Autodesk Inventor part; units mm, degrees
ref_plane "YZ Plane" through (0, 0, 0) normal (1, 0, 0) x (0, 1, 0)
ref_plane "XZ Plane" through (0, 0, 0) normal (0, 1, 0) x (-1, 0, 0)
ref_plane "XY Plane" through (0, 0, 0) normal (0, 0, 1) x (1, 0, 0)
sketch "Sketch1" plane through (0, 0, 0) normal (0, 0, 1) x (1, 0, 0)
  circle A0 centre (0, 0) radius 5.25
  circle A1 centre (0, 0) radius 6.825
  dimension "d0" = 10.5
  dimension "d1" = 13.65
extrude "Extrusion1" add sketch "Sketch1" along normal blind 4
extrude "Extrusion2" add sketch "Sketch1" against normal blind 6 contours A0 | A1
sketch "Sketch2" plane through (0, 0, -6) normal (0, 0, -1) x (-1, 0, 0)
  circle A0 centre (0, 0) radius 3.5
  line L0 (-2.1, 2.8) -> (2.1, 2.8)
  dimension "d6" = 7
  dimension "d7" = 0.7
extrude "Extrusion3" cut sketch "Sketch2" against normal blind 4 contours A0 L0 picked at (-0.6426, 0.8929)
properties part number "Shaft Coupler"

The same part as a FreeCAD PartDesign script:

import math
import FreeCAD as App
import Part
import Sketcher

V = App.Vector
Q = App.Units.Quantity

doc = App.newDocument("Part")
body = doc.addObject("PartDesign::Body", "Body")

# Sketch on XY plane
sketch1 = body.newObject("Sketcher::SketchObject", "Sketch")
sketch1.AttachmentSupport = (doc.getObject("XY_Plane"), [""])
sketch1.MapMode = "FlatFace"
sketch1.addGeometry([
    Part.Circle(V(0, 0, 0), V(0, 0, 1), 6.825),
    Part.Circle(V(0, 0, 0), V(0, 0, 1), 5.25),
], False)
sketch1.addConstraint([
    Sketcher.Constraint("Coincident", 0, 3, -1, 1),
    Sketcher.Constraint("Coincident", 1, 3, -1, 1),
    Sketcher.Constraint("Diameter", 1, Q("10.5 mm")),
    Sketcher.Constraint("Diameter", 0, Q("13.65 mm")),
])
pad1 = body.newObject("PartDesign::Pad", "Pad")
pad1.Profile = sketch1
pad1.Length = 4

# Sketch on XY plane
sketch2 = body.newObject("Sketcher::SketchObject", "Sketch001")
sketch2.AttachmentSupport = (doc.getObject("XY_Plane"), [""])
sketch2.MapMode = "FlatFace"
sketch2.addGeometry(Part.Circle(V(0, 0, 0), V(0, 0, 1), 6.825), False)
sketch2.addConstraint([
    Sketcher.Constraint("Coincident", 0, 3, -1, 1),
    Sketcher.Constraint("Diameter", 0, Q("13.65 mm")),
])
pad2 = body.newObject("PartDesign::Pad", "Pad001")
pad2.Profile = sketch2
pad2.Length = 6
pad2.Reversed = True

# Sketch on XY plane
sketch3 = body.newObject("Sketcher::SketchObject", "Sketch002")
sketch3.AttachmentSupport = (doc.getObject("XY_Plane"), [""])
sketch3.MapMode = "FlatFace"
sketch3.AttachmentOffset = App.Placement(V(0, 0, -6), App.Rotation())
sketch3.addGeometry([
    Part.ArcOfCircle(Part.Circle(V(0, 0, 0), V(0, 0, 1), 3.5), math.radians(126.869898), math.radians(413.130102)),
    Part.LineSegment(V(-2.1, 2.8, 0), V(2.1, 2.8, 0)),
], False)
sketch3.addConstraint([
    Sketcher.Constraint("Coincident", 0, 1, 1, 1),
    Sketcher.Constraint("Coincident", 1, 2, 0, 2),
    Sketcher.Constraint("Horizontal", 1),
    Sketcher.Constraint("Coincident", 0, 3, -1, 1),
    Sketcher.Constraint("Radius", 0, Q("3.5 mm")),
    Sketcher.Constraint("DistanceX", 1, 1, 1, 2, Q("4.2 mm")),
])
pocket1 = body.newObject("PartDesign::Pocket", "Pocket")
pocket1.Profile = sketch3
pocket1.Length = 4
pocket1.Reversed = True

doc.recompute()
